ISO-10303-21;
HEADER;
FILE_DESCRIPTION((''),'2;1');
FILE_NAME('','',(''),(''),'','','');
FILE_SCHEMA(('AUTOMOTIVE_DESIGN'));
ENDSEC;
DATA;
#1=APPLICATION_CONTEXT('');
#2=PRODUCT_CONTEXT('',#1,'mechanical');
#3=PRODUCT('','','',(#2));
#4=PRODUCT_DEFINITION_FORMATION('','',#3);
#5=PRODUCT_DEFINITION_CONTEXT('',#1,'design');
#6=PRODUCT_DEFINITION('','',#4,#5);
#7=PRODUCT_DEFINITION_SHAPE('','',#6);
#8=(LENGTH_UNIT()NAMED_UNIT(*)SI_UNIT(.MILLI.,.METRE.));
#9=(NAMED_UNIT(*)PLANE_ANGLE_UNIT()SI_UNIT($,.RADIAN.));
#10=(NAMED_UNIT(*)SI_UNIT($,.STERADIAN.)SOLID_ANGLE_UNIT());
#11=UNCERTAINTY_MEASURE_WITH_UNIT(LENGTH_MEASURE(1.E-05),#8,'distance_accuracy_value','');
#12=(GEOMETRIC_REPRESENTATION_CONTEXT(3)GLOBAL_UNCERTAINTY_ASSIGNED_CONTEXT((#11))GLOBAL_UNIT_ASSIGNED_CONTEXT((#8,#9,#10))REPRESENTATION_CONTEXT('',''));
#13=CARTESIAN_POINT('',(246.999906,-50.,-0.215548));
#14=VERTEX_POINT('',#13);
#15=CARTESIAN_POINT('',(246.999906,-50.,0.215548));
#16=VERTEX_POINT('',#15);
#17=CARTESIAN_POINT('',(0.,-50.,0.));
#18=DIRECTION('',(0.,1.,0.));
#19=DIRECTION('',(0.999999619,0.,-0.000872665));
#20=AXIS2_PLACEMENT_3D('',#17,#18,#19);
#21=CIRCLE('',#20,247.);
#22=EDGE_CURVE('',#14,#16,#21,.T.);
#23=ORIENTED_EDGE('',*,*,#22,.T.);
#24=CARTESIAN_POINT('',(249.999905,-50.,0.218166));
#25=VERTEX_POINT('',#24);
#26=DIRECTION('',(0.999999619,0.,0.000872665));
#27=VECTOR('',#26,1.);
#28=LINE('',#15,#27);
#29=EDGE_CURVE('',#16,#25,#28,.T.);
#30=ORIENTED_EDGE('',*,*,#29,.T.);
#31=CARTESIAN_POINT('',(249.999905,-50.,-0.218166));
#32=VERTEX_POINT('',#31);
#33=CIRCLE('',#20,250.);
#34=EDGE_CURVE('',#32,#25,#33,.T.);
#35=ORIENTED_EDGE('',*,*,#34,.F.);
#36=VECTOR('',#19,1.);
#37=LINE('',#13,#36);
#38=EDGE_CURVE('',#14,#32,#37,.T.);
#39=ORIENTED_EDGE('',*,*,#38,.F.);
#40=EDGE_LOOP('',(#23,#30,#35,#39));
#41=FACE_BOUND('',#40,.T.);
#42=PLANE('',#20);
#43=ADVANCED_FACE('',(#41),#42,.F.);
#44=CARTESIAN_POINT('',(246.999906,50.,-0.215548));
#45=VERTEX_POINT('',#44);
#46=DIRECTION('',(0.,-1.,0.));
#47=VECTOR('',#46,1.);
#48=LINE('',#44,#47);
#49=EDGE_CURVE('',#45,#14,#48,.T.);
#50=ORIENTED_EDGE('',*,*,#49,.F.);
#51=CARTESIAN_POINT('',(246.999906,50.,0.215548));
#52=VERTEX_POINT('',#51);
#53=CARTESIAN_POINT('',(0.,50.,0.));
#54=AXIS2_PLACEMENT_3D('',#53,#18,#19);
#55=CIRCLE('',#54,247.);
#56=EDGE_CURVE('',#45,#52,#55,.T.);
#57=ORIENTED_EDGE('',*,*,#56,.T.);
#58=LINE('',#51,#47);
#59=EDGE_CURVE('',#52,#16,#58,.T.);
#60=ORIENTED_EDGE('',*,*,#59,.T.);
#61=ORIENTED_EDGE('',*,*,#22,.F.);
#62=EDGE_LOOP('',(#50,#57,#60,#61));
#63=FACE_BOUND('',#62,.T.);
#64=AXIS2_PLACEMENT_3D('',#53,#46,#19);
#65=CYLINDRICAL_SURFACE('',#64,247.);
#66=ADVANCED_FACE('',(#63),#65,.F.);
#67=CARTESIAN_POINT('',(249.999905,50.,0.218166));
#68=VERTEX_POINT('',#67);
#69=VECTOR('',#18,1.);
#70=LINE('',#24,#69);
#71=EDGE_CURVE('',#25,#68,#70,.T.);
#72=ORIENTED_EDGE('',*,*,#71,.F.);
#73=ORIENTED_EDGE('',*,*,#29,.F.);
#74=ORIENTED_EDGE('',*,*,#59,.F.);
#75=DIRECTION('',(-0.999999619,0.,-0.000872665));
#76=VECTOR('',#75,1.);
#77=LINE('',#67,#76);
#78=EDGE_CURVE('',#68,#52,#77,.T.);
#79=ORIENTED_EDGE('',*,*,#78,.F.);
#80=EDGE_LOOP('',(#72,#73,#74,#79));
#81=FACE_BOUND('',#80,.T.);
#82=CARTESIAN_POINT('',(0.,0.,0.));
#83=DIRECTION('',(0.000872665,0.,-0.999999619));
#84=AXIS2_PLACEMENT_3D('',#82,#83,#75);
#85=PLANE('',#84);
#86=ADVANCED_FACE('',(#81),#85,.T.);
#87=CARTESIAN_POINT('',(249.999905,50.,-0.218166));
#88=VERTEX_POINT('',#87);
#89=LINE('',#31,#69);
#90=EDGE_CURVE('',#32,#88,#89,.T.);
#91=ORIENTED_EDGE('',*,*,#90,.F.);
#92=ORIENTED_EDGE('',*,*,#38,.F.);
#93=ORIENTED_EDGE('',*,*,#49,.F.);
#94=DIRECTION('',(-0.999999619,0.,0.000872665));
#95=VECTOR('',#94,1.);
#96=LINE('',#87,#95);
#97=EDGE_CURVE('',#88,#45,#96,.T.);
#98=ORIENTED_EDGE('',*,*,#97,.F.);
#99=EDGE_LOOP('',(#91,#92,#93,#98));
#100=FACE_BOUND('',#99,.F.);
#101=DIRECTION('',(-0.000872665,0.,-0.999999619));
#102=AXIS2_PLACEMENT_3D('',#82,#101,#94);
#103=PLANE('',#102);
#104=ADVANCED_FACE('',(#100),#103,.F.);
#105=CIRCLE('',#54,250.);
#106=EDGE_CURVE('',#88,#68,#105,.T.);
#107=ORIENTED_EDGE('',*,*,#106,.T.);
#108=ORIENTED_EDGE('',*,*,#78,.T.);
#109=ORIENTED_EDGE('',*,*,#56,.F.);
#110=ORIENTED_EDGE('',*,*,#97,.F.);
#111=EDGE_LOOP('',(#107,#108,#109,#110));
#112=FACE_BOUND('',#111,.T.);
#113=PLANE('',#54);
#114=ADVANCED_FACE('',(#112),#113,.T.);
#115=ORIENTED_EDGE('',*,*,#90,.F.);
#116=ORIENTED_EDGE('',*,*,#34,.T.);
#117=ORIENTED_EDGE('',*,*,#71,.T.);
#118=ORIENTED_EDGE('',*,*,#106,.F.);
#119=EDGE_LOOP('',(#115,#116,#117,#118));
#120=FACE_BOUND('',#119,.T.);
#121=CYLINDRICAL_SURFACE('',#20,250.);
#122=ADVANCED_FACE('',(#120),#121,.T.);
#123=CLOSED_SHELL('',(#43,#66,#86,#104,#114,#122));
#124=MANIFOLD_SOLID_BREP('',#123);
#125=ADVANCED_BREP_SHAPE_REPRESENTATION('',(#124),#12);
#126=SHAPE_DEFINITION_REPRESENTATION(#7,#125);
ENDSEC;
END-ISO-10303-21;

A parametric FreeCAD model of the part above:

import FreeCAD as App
import Part
import Sketcher
Q = App.Units.Quantity


def add_polygon(sketch, points):
    """Adds a closed chain of lines whose ends are joined by coincident constraints."""
    first, n = sketch.GeometryCount, len(points)
    for a, b in zip(points, points[1:] + points[:1]):
        sketch.addGeometry(Part.LineSegment(App.Vector(*a, 0), App.Vector(*b, 0)), False)
    for i in range(n):
        sketch.addConstraint(Sketcher.Constraint("Coincident", first + i, 2, first + (i + 1) % n, 1))

doc = App.newDocument("Part")
body = doc.addObject("PartDesign::Body", "Body")

sketch1 = body.newObject("Sketcher::SketchObject", "Sketch")
sketch1.AttachmentSupport = (doc.getObject("XY_Plane"), [""])
sketch1.MapMode = "FlatFace"
add_polygon(sketch1, [(-247, 50), (-250, 50), (-250, -50), (-247, -50)])
sketch1.addConstraint(Sketcher.Constraint("Horizontal", 0))
sketch1.addConstraint(Sketcher.Constraint("Vertical", 1))
sketch1.addConstraint(Sketcher.Constraint("Horizontal", 2))
sketch1.addConstraint(Sketcher.Constraint("Vertical", 3))
sketch1.addConstraint(Sketcher.Constraint("DistanceY", 1, 2, 1, 1, Q("3.937 in")))
sketch1.addConstraint(Sketcher.Constraint("DistanceX", 0, 2, 0, 1, Q("0.1181 in")))
sketch1.addConstraint(Sketcher.Constraint("DistanceX", 0, 2, -1, 1, Q("250 mm")))
sketch1.addConstraint(Sketcher.Constraint("DistanceY", -1, 1, 0, 2, Q("1.9685 in")))
revolution = body.newObject("PartDesign::Revolution", "Revolution")
revolution.Profile = sketch1
revolution.ReferenceAxis = (sketch1, ["V_Axis"])
revolution.Angle = 359.9
revolution.Midplane = True

doc.recompute()
